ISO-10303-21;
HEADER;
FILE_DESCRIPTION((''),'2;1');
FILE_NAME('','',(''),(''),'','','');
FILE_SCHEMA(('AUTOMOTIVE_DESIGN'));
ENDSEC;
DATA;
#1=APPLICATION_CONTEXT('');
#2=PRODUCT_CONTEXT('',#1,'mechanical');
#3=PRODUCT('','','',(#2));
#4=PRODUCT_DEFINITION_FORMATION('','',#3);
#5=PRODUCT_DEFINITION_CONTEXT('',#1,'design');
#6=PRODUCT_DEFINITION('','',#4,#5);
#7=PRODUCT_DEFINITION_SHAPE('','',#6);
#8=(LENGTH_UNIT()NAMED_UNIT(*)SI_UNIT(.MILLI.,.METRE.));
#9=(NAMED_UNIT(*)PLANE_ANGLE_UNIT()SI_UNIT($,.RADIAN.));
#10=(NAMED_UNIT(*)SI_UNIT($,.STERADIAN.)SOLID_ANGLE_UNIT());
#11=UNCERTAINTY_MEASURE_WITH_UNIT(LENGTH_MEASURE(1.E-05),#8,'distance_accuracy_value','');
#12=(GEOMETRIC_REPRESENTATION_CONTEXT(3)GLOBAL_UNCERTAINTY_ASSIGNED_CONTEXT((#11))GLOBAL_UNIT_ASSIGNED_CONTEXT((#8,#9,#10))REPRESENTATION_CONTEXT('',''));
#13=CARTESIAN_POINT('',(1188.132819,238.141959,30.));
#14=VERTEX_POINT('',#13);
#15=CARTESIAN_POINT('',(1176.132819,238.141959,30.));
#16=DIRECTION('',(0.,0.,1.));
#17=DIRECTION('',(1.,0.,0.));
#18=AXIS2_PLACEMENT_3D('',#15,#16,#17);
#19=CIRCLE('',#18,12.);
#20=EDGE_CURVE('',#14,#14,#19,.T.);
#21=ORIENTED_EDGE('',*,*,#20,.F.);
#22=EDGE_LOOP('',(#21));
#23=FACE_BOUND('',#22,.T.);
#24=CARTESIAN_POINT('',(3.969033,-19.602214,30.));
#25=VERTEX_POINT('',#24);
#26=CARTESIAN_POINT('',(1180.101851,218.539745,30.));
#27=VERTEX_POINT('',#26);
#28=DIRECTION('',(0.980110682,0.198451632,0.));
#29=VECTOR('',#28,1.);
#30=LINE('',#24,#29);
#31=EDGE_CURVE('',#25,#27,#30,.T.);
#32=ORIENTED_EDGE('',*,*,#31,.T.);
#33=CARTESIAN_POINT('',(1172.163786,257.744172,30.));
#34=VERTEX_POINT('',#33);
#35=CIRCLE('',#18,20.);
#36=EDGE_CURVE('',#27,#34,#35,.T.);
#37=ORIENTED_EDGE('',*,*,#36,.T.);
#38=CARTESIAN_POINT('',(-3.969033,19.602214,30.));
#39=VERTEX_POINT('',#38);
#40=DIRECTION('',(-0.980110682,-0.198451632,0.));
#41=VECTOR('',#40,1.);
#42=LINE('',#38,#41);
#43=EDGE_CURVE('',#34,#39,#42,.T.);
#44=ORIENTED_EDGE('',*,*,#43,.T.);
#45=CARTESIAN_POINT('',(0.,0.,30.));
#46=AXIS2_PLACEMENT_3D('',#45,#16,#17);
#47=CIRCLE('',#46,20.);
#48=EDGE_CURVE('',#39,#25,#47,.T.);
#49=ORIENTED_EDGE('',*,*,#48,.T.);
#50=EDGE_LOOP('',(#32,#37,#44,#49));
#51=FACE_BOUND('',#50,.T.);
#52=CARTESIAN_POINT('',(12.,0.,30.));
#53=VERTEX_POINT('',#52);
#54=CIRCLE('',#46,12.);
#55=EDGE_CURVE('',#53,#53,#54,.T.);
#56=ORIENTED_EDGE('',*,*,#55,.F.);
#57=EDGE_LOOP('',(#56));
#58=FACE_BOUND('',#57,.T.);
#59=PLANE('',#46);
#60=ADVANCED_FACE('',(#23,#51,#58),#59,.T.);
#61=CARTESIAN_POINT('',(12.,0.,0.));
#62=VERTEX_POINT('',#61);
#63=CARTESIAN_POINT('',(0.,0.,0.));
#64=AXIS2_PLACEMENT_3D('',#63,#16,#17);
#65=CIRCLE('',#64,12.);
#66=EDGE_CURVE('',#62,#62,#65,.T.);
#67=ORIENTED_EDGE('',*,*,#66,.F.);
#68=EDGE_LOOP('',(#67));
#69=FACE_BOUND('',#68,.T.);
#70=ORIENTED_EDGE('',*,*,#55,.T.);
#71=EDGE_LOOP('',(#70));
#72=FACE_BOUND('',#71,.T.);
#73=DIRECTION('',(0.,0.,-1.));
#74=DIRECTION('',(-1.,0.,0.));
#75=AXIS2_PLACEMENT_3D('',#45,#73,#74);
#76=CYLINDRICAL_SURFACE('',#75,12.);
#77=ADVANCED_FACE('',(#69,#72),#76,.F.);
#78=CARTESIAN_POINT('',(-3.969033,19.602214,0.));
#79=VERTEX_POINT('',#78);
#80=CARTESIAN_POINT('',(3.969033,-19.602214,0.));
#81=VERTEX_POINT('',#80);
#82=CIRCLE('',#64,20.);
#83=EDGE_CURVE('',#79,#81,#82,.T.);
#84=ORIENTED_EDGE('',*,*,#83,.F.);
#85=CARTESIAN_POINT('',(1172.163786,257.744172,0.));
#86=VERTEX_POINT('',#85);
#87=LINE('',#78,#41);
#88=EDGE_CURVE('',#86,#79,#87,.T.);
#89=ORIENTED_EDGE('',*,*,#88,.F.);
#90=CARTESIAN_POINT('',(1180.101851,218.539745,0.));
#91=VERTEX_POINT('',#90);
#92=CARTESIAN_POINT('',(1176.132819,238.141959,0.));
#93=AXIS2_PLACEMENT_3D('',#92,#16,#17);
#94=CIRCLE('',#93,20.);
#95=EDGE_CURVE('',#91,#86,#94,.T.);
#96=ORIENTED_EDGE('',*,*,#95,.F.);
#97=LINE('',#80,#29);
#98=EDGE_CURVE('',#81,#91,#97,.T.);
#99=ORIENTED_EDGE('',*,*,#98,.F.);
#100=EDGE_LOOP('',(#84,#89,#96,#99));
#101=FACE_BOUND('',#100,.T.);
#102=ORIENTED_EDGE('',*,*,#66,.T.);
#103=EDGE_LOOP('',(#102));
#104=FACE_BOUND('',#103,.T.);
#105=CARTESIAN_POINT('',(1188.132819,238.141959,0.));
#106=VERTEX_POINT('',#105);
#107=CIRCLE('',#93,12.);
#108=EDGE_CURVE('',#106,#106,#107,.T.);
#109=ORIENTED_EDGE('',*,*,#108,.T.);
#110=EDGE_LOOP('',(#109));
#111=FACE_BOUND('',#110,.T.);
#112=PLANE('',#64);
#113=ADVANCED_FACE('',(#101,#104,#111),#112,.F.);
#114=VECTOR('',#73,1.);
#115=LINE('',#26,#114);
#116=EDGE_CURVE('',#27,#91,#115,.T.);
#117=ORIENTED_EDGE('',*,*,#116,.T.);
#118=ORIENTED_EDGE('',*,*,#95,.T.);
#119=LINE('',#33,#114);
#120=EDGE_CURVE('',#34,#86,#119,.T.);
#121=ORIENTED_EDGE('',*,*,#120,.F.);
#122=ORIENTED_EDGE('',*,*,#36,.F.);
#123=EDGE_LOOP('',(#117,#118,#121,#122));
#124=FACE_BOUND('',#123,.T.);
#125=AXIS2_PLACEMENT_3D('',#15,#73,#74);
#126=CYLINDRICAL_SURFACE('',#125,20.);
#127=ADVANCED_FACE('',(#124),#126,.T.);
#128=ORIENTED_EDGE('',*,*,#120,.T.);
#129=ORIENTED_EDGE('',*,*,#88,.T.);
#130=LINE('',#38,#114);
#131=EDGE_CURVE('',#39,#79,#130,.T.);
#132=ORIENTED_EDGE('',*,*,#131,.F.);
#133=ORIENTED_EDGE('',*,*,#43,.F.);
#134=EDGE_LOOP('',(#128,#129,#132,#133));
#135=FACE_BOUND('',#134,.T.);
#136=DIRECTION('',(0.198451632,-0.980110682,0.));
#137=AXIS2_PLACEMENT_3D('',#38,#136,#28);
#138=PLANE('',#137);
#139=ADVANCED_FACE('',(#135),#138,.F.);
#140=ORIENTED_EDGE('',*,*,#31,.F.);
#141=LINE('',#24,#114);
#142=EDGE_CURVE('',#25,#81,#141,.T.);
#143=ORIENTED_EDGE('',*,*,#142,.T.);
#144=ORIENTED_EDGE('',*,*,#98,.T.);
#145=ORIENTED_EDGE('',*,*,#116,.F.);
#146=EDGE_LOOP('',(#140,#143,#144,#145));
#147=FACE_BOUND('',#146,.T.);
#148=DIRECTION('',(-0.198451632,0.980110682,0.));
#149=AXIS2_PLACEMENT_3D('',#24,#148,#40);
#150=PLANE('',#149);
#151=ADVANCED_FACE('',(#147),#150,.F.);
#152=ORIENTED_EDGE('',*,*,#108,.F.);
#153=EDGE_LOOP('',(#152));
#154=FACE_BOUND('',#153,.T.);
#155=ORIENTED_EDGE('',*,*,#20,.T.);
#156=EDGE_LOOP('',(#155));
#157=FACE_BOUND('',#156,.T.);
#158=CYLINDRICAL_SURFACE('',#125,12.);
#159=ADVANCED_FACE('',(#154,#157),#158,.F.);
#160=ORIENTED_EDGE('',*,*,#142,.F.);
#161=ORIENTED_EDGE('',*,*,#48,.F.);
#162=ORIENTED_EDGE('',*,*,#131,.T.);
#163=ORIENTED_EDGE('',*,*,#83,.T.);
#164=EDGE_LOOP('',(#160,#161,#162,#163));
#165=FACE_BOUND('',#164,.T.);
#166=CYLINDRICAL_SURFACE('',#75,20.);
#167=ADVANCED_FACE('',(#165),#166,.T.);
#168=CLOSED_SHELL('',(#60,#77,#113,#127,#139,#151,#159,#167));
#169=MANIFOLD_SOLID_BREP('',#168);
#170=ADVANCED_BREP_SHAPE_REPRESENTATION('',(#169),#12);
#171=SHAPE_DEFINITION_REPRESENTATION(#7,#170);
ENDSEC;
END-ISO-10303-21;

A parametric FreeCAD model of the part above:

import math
import FreeCAD as App
import Part
import Sketcher

V = App.Vector

doc = App.newDocument("Part")
params = doc.addObject("Spreadsheet::Sheet", "Params")
for row, (alias, value) in enumerate([
    ("sketch1_diameter", "24 mm"),
    ("sketch1_radius", "20 mm"),
    ("sketch1_length", "1200 mm"),
    ("pad1_length", "30 mm"),
], start=1):
    params.set(f"A{row}", alias)
    params.set(f"B{row}", "=" + value)
    params.setAlias(f"B{row}", alias)

body = doc.addObject("PartDesign::Body", "Body")

sketch1 = doc.addObject("Sketcher::SketchObject", "Sketch")
body.addObject(sketch1)
sketch1.AttachmentSupport = (doc.XY_Plane, [""])
sketch1.MapMode = "FlatFace"
sketch1.addGeometry([
    Part.LineSegment(V(1172.163786, 257.744172, 0), V(-3.969033, 19.602214, 0)),
    Part.ArcOfCircle(Part.Circle(V(0, 0, 0), V(0, 0, 1), 20), math.radians(101.446429), math.radians(281.446429)),
    Part.LineSegment(V(3.969033, -19.602214, 0), V(1180.101851, 218.539745, 0)),
    Part.ArcOfCircle(Part.Circle(V(1176.132819, 238.141959, 0), V(0, 0, 1), 20), math.radians(-78.553571), math.radians(101.446429)),
    Part.Circle(V(0, 0, 0), V(0, 0, 1), 12),
    Part.Circle(V(1176.132819, 238.141959, 0), V(0, 0, 1), 12),
], False)
sketch1.addConstraint([
    Sketcher.Constraint("Tangent", 0, 2, 1, 1),
    Sketcher.Constraint("Tangent", 1, 2, 2, 1),
    Sketcher.Constraint("Tangent", 2, 2, 3, 1),
    Sketcher.Constraint("Tangent", 3, 2, 0, 1),
    Sketcher.Constraint("Coincident", 1, 3, -1, 1),
    Sketcher.Constraint("Coincident", 4, 3, -1, 1),
    Sketcher.Constraint("Coincident", 5, 3, 3, 3),
    Sketcher.Constraint("Equal", 1, 3),
    Sketcher.Constraint("Equal", 4, 5),
    Sketcher.Constraint("Diameter", 4, 24.0),
    Sketcher.Constraint("Radius", 1, 20.0),
    Sketcher.Constraint("Distance", 0, 1200.0),
    Sketcher.Constraint("DistanceX", -1, 1, 3, 3, 1176.132819),
])
sketch1.setExpression("Constraints[9]", "Params.sketch1_diameter")
sketch1.setExpression("Constraints[10]", "Params.sketch1_radius")
sketch1.setExpression("Constraints[11]", "Params.sketch1_length")
pad1 = doc.addObject("PartDesign::Pad", "Pad")
body.addObject(pad1)
pad1.Profile = sketch1
pad1.setExpression("Length", "Params.pad1_length")

doc.recompute()
